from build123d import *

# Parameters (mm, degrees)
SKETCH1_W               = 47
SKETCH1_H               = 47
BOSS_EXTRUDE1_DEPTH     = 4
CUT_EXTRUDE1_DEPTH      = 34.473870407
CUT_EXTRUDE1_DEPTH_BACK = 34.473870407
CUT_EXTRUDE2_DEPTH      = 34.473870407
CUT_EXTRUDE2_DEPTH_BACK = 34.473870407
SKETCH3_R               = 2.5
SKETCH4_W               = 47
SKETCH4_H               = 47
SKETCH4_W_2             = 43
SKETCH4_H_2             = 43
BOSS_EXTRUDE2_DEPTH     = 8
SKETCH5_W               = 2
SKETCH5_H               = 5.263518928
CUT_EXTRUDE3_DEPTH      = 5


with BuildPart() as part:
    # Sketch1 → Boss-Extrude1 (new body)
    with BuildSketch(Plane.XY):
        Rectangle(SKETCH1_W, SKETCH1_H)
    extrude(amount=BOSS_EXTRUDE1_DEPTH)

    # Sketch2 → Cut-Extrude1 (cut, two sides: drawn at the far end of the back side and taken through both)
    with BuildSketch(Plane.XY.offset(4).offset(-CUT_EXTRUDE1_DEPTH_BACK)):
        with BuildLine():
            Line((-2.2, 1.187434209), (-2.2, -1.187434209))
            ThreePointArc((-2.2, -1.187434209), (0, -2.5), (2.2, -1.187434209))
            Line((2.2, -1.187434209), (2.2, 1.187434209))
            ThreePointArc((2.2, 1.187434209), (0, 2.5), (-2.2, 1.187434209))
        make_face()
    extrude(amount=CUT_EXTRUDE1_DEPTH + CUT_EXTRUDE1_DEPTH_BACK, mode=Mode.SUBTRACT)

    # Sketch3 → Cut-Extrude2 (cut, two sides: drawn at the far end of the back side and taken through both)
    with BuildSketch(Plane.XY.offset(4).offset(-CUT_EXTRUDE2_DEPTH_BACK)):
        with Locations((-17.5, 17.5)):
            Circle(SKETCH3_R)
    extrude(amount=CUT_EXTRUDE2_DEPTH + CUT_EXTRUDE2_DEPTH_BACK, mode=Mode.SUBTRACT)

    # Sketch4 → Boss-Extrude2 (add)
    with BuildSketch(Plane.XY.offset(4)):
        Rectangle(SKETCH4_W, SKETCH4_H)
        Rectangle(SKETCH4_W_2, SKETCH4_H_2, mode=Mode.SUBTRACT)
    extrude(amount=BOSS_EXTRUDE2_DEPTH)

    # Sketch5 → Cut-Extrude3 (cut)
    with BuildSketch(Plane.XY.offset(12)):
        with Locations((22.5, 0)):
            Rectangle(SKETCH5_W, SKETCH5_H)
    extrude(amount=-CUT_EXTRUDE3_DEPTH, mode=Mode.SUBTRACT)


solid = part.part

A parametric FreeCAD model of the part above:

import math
import FreeCAD as App
import Part
import Sketcher

doc = App.newDocument("Part")
params = doc.addObject("Spreadsheet::Sheet", "Params")
for row, (alias, value) in enumerate([
    ("sketch1_width", "47 mm"),
    ("pad1_length", "4 mm"),
    ("sketch2_radius", "2.5 mm"),
    ("sketch3_diameter", "5 mm"),
    ("sketch4_width", "47 mm"),
    ("sketch4_width2", "43 mm"),
    ("pad2_length", "8 mm"),
    ("sketch5_width", "2 mm"),
    ("pocket3_length", "5 mm"),
], start=1):
    params.set(f"A{row}", alias)
    params.set(f"B{row}", "=" + value)
    params.setAlias(f"B{row}", alias)

body = doc.addObject("PartDesign::Body", "Body")

# Sketch on XY plane
sketch1 = body.newObject("Sketcher::SketchObject", "Sketch")
sketch1.AttachmentSupport = (doc.getObject("XY_Plane"), [""])
sketch1.MapMode = "FlatFace"
sketch1.addGeometry([
    Part.LineSegment(App.Vector(-24, 24, 0), App.Vector(-24, -24, 0)),
    Part.LineSegment(App.Vector(-24, -24, 0), App.Vector(24, -24, 0)),
    Part.LineSegment(App.Vector(24, -24, 0), App.Vector(24, 24, 0)),
    Part.LineSegment(App.Vector(24, 24, 0), App.Vector(-24, 24, 0)),
], False)
sketch1.addConstraint([
    Sketcher.Constraint("Coincident", 0, 2, 1, 1),
    Sketcher.Constraint("Coincident", 1, 2, 2, 1),
    Sketcher.Constraint("Coincident", 2, 2, 3, 1),
    Sketcher.Constraint("Coincident", 3, 2, 0, 1),
    Sketcher.Constraint("Vertical", 0),
    Sketcher.Constraint("Horizontal", 1),
    Sketcher.Constraint("Vertical", 2),
    Sketcher.Constraint("Horizontal", 3),
    Sketcher.Constraint("Symmetric", 0, 2, 2, 2, -1, 1),
    Sketcher.Constraint("Equal", 3, 0),
    Sketcher.Constraint("DistanceX", 1, 1, 1, 2, 47.0),
])
sketch1.setExpression("Constraints[10]", "Params.sketch1_width")
pad1 = body.newObject("PartDesign::Pad", "Pad")
pad1.Profile = sketch1
pad1.setExpression("Length", "Params.pad1_length")

# Sketch on XY plane
sketch2 = body.newObject("Sketcher::SketchObject", "Sketch001")
sketch2.AttachmentSupport = (doc.getObject("XY_Plane"), [""])
sketch2.MapMode = "FlatFace"
sketch2.AttachmentOffset = App.Placement(App.Vector(0, 0, 4), App.Rotation())
sketch2.addGeometry([
    Part.LineSegment(App.Vector(-2.2, 1.2, 0), App.Vector(-2.2, -1.2, 0)),
    Part.ArcOfCircle(Part.Circle(App.Vector(0, 0, 0), App.Vector(0, 0, 1), 2.5), math.radians(-152), math.radians(-28)),
    Part.LineSegment(App.Vector(2.2, -1.2, 0), App.Vector(2.2, 1.2, 0)),
    Part.ArcOfCircle(Part.Circle(App.Vector(0, 0, 0), App.Vector(0, 0, 1), 2.5), math.radians(28), math.radians(152)),
], False)
sketch2.addConstraint([
    Sketcher.Constraint("Coincident", 0, 2, 1, 1),
    Sketcher.Constraint("Coincident", 1, 2, 2, 1),
    Sketcher.Constraint("Coincident", 2, 2, 3, 1),
    Sketcher.Constraint("Coincident", 3, 2, 0, 1),
    Sketcher.Constraint("Vertical", 0),
    Sketcher.Constraint("Vertical", 2),
    Sketcher.Constraint("Coincident", 1, 3, -1, 1),
    Sketcher.Constraint("Coincident", 3, 3, -1, 1),
    Sketcher.Constraint("Equal", 1, 3),
    Sketcher.Constraint("Horizontal", 0, 2, 1, 2),
    Sketcher.Constraint("Radius", 1, 2.5),
    Sketcher.Constraint("DistanceX", 0, 2, -1, 1, 2.2),
])
sketch2.setExpression("Constraints[10]", "Params.sketch2_radius")
pocket1 = body.newObject("PartDesign::Pocket", "Pocket")
pocket1.Profile = sketch2
pocket1.Type = "ThroughAll"
pocket1.Midplane = True

# Sketch on XY plane
sketch3 = body.newObject("Sketcher::SketchObject", "Sketch002")
sketch3.AttachmentSupport = (doc.getObject("XY_Plane"), [""])
sketch3.MapMode = "FlatFace"
sketch3.AttachmentOffset = App.Placement(App.Vector(0, 0, 4), App.Rotation())
sketch3.addGeometry(Part.Circle(App.Vector(-17.5, 17.5, 0), App.Vector(0, 0, 1), 2.5), False)
sketch3.addConstraint([
    Sketcher.Constraint("Diameter", 0, 5.0),
    Sketcher.Constraint("DistanceX", 0, 3, -1, 1, 17.5),
    Sketcher.Constraint("DistanceY", -1, 1, 0, 3, 17.5),
])
sketch3.setExpression("Constraints[0]", "Params.sketch3_diameter")
pocket2 = body.newObject("PartDesign::Pocket", "Pocket001")
pocket2.Profile = sketch3
pocket2.Type = "ThroughAll"
pocket2.Midplane = True

# Sketch on XY plane
sketch4 = body.newObject("Sketcher::SketchObject", "Sketch003")
sketch4.AttachmentSupport = (doc.getObject("XY_Plane"), [""])
sketch4.MapMode = "FlatFace"
sketch4.AttachmentOffset = App.Placement(App.Vector(0, 0, 4), App.Rotation())
sketch4.addGeometry([
    Part.LineSegment(App.Vector(-24, 24, 0), App.Vector(-24, -24, 0)),  # 0
    Part.LineSegment(App.Vector(-24, -24, 0), App.Vector(24, -24, 0)),  # 1
    Part.LineSegment(App.Vector(24, -24, 0), App.Vector(24, 24, 0)),  # 2
    Part.LineSegment(App.Vector(24, 24, 0), App.Vector(-24, 24, 0)),  # 3
    Part.LineSegment(App.Vector(22, -22, 0), App.Vector(-22, -22, 0)),  # 4
    Part.LineSegment(App.Vector(-22, -22, 0), App.Vector(-22, 22, 0)),  # 5
    Part.LineSegment(App.Vector(-22, 22, 0), App.Vector(22, 22, 0)),  # 6
    Part.LineSegment(App.Vector(22, 22, 0), App.Vector(22, -22, 0)),  # 7
], False)
sketch4.addConstraint([
    Sketcher.Constraint("Coincident", 0, 2, 1, 1),
    Sketcher.Constraint("Coincident", 1, 2, 2, 1),
    Sketcher.Constraint("Coincident", 2, 2, 3, 1),
    Sketcher.Constraint("Coincident", 3, 2, 0, 1),
    Sketcher.Constraint("Coincident", 4, 2, 5, 1),
    Sketcher.Constraint("Coincident", 5, 2, 6, 1),
    Sketcher.Constraint("Coincident", 6, 2, 7, 1),
    Sketcher.Constraint("Coincident", 7, 2, 4, 1),
    Sketcher.Constraint("Vertical", 0),
    Sketcher.Constraint("Horizontal", 1),
    Sketcher.Constraint("Vertical", 2),
    Sketcher.Constraint("Horizontal", 3),
    Sketcher.Constraint("Horizontal", 4),
    Sketcher.Constraint("Vertical", 5),
    Sketcher.Constraint("Horizontal", 6),
    Sketcher.Constraint("Vertical", 7),
    Sketcher.Constraint("Symmetric", 0, 2, 2, 2, -1, 1),
    Sketcher.Constraint("Symmetric", 4, 2, 6, 2, -1, 1),
    Sketcher.Constraint("Equal", 3, 0),
    Sketcher.Constraint("Equal", 6, 5),
    Sketcher.Constraint("DistanceX", 1, 1, 1, 2, 47.0),
    Sketcher.Constraint("DistanceX", 4, 2, 4, 1, 43.0),
])
sketch4.setExpression("Constraints[20]", "Params.sketch4_width")
sketch4.setExpression("Constraints[21]", "Params.sketch4_width2")
pad2 = body.newObject("PartDesign::Pad", "Pad001")
pad2.Profile = sketch4
pad2.setExpression("Length", "Params.pad2_length")

# Sketch on XY plane
sketch5 = body.newObject("Sketcher::SketchObject", "Sketch004")
sketch5.AttachmentSupport = (doc.getObject("XY_Plane"), [""])
sketch5.MapMode = "FlatFace"
sketch5.AttachmentOffset = App.Placement(App.Vector(0, 0, 12), App.Rotation())
sketch5.addGeometry([
    Part.LineSegment(App.Vector(21.5, 2.6, 0), App.Vector(21.5, -2.6, 0)),
    Part.LineSegment(App.Vector(21.5, -2.6, 0), App.Vector(23.5, -2.6, 0)),
    Part.LineSegment(App.Vector(23.5, -2.6, 0), App.Vector(23.5, 2.6, 0)),
    Part.LineSegment(App.Vector(23.5, 2.6, 0), App.Vector(21.5, 2.6, 0)),
], False)
sketch5.addConstraint([
    Sketcher.Constraint("Coincident", 0, 2, 1, 1),
    Sketcher.Constraint("Coincident", 1, 2, 2, 1),
    Sketcher.Constraint("Coincident", 2, 2, 3, 1),
    Sketcher.Constraint("Coincident", 3, 2, 0, 1),
    Sketcher.Constraint("Vertical", 0),
    Sketcher.Constraint("Horizontal", 1),
    Sketcher.Constraint("Vertical", 2),
    Sketcher.Constraint("Horizontal", 3),
    Sketcher.Constraint("DistanceX", 1, 1, 1, 2, 2.0),
    Sketcher.Constraint("DistanceX", -1, 1, 0, 2, 21.5),
    Sketcher.Constraint("DistanceY", 0, 2, 0, 1, 5.263519),
    Sketcher.Constraint("DistanceY", 0, 2, -1, 1, 2.631759),
])
sketch5.setExpression("Constraints[8]", "Params.sketch5_width")
pocket3 = body.newObject("PartDesign::Pocket", "Pocket002")
pocket3.Profile = sketch5
pocket3.setExpression("Length", "Params.pocket3_length")

doc.recompute()
